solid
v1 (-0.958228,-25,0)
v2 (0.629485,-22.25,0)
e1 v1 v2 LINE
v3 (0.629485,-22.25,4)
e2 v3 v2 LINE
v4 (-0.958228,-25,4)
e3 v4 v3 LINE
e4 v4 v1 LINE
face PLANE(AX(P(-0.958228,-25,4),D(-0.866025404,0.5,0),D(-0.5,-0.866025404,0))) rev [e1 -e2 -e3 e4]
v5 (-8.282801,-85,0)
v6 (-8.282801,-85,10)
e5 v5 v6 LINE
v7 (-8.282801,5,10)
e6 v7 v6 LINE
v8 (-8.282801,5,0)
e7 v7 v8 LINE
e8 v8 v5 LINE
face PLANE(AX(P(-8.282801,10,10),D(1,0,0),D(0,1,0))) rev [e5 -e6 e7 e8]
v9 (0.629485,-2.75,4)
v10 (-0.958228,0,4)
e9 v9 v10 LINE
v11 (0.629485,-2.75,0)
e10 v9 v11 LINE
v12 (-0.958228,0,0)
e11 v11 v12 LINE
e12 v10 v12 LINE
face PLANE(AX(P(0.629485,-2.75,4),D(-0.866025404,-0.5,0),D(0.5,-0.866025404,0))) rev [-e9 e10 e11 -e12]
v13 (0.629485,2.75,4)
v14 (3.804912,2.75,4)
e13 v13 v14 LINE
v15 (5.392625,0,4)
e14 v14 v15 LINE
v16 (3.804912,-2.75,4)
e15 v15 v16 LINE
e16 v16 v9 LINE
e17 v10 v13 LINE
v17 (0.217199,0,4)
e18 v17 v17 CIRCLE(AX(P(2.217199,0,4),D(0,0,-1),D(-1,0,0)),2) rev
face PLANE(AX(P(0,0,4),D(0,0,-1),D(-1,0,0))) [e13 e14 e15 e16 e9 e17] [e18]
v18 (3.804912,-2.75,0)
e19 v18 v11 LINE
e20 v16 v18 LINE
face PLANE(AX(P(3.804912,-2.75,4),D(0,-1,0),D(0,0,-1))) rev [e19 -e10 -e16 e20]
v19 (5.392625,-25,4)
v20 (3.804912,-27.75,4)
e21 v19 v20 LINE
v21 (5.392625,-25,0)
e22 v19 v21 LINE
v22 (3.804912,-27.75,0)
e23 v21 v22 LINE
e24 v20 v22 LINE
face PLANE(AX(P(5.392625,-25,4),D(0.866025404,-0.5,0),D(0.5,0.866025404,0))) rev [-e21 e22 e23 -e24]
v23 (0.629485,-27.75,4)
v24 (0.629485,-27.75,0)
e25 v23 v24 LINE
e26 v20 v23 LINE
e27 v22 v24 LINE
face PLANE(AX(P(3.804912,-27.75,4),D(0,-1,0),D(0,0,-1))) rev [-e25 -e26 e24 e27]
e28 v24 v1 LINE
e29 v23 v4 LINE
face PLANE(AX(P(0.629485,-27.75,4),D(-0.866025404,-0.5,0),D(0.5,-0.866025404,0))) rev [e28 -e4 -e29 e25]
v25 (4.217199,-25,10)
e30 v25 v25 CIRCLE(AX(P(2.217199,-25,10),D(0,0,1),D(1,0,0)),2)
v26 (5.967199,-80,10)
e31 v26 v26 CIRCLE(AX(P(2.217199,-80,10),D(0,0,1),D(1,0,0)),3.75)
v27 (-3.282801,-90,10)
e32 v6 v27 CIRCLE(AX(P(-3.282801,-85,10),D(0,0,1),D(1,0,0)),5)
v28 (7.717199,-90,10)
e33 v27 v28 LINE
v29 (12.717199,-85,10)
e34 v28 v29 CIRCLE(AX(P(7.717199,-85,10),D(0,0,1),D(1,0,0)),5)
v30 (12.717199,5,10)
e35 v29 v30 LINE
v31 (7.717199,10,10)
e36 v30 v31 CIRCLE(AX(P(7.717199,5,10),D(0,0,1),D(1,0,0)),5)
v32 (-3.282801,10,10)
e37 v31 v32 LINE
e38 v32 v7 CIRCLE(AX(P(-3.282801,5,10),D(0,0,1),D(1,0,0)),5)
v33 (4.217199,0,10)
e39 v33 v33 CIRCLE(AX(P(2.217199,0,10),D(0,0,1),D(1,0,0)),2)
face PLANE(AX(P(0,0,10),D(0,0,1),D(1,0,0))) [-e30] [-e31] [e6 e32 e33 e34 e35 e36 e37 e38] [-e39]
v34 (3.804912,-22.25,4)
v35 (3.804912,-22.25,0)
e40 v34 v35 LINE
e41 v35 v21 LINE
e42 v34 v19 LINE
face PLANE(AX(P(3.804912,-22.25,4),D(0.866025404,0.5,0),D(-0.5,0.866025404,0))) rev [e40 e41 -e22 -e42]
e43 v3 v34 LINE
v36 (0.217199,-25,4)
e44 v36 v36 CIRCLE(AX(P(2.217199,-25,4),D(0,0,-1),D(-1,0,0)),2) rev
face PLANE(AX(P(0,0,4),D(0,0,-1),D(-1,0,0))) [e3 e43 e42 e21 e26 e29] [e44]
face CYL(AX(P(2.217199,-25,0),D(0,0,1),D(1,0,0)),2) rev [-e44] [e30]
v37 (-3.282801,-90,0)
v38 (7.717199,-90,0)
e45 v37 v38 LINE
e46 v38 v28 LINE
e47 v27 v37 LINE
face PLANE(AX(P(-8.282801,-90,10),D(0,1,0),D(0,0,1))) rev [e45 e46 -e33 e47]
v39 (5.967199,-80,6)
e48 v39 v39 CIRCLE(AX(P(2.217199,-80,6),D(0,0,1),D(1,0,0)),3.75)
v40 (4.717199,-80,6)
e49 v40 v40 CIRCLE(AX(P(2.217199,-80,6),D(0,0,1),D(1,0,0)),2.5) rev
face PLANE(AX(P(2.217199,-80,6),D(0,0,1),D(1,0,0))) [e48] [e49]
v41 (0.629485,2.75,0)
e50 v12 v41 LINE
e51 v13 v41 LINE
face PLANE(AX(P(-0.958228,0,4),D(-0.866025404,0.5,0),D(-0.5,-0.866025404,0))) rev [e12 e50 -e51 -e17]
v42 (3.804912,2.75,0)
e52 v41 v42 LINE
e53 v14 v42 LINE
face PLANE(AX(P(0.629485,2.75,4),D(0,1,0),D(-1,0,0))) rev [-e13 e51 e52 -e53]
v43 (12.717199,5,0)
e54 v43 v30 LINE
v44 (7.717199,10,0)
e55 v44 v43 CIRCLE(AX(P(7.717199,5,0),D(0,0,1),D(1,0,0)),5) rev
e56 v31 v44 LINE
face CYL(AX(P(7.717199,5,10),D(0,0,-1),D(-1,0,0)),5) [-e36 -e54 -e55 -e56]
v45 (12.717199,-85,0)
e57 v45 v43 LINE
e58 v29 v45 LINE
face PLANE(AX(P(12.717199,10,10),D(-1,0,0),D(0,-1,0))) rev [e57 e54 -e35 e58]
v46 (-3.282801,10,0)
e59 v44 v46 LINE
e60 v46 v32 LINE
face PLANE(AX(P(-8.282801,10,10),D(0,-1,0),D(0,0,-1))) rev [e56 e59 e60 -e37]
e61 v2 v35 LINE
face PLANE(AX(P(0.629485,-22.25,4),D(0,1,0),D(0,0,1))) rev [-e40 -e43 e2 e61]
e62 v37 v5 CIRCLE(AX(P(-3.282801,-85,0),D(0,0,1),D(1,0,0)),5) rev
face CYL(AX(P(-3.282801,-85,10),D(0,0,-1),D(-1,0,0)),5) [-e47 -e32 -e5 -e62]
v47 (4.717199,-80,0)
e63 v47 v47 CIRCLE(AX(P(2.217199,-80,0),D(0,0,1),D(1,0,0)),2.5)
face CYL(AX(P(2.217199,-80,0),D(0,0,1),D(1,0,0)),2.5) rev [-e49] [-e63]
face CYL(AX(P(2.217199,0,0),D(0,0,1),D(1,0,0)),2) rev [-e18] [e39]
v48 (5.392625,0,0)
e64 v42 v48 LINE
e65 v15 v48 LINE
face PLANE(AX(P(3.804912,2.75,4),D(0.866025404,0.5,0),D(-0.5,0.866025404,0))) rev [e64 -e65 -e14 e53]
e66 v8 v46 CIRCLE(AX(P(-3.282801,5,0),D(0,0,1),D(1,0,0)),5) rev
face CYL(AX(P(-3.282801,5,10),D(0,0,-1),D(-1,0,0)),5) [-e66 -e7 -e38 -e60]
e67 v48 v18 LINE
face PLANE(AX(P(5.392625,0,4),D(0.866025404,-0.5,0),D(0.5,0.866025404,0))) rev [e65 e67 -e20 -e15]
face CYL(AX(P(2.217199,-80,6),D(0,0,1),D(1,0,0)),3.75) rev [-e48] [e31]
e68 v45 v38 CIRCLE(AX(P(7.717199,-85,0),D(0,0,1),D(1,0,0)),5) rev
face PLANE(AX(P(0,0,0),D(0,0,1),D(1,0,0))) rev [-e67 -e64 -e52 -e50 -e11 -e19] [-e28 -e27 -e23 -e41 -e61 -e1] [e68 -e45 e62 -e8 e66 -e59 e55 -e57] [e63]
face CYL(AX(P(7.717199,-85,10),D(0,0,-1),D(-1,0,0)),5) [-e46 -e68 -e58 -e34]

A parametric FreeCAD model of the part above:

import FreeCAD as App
import Part
import Sketcher

V = App.Vector
Q = App.Units.Quantity


def edges_at(feature, points):
    """Names of the edges that pass closest to the given points."""
    edges = feature.Shape.Edges
    near = lambda p: min(range(len(edges)), key=lambda i: edges[i].distToShape(Part.Vertex(*p))[0])
    return sorted({f"Edge{near(p) + 1}" for p in points})

doc = App.newDocument("Part")
body = doc.addObject("PartDesign::Body", "Body")

sketch1 = doc.addObject("Sketcher::SketchObject", "Sketch")
body.addObject(sketch1)
sketch1.AttachmentSupport = (doc.XY_Plane, [""])
sketch1.MapMode = "FlatFace"
sketch1.addGeometry([
    Part.LineSegment(V(-8, 10, 0), V(-8, -90, 0)),
    Part.LineSegment(V(-8, -90, 0), V(13, -90, 0)),
    Part.LineSegment(V(13, -90, 0), V(13, 10, 0)),
    Part.LineSegment(V(13, 10, 0), V(-8, 10, 0)),
], False)
sketch1.addConstraint([
    Sketcher.Constraint("Coincident", 0, 2, 1, 1),
    Sketcher.Constraint("Coincident", 1, 2, 2, 1),
    Sketcher.Constraint("Coincident", 2, 2, 3, 1),
    Sketcher.Constraint("Coincident", 3, 2, 0, 1),
    Sketcher.Constraint("Vertical", 0),
    Sketcher.Constraint("Horizontal", 1),
    Sketcher.Constraint("Vertical", 2),
    Sketcher.Constraint("Horizontal", 3),
    Sketcher.Constraint("DistanceX", 1, 1, 1, 2, 21.0),
    Sketcher.Constraint("DistanceY", 0, 2, 0, 1, 100.0),
    Sketcher.Constraint("DistanceY", 0, 2, -1, 1, 90.0),
    Sketcher.Constraint("DistanceX", 0, 2, -1, 1, 8.282801),
])
pad1 = doc.addObject("PartDesign::Pad", "Pad")
body.addObject(pad1)
pad1.Profile = sketch1
pad1.Length = 10

sketch2 = doc.addObject("Sketcher::SketchObject", "Sketch001")
body.addObject(sketch2)
sketch2.AttachmentSupport = (doc.XY_Plane, [""])
sketch2.MapMode = "FlatFace"
sketch2.AttachmentOffset = App.Placement(V(0, 0, 10), App.Rotation())
sketch2.addGeometry([
    Part.Circle(V(2.2, 0, 0), V(0, 0, 1), 2),
    Part.Circle(V(2.2, -25, 0), V(0, 0, 1), 2),
    Part.Circle(V(2.2, -80, 0), V(0, 0, 1), 2.5),
], False)
sketch2.addConstraint([
    Sketcher.Constraint("Equal", 0, 1),
    Sketcher.Constraint("PointOnObject", 0, 3, -1),
    Sketcher.Constraint("Vertical", 0, 3, 1, 3),
    Sketcher.Constraint("Vertical", 1, 3, 2, 3),
    Sketcher.Constraint("Diameter", 0, 4.0),
    Sketcher.Constraint("Diameter", 2, 5.0),
    Sketcher.Constraint("DistanceY", 1, 3, -1, 1, 25.0),
    Sketcher.Constraint("DistanceY", 2, 3, -1, 1, 80.0),
    Sketcher.Constraint("DistanceX", -1, 1, 0, 3, 2.217199),
])
pocket1 = doc.addObject("PartDesign::Pocket", "Pocket")
body.addObject(pocket1)
pocket1.Profile = sketch2
pocket1.Length = 10
doc.recompute()

fillet = doc.addObject("PartDesign::Fillet", "Fillet")
body.addObject(fillet)
fillet.Base = (pocket1, edges_at(pocket1, [
    (-8.283, 10, 5),
    (12.717, 10, 5),
    (12.717, -90, 5),
    (-8.283, -90, 5),
]))
fillet.Radius = 5

sketch3 = doc.addObject("Sketcher::SketchObject", "Sketch002")
body.addObject(sketch3)
sketch3.AttachmentSupport = (doc.XY_Plane, [""])
sketch3.MapMode = "FlatFace"
sketch3.addGeometry([
    Part.LineSegment(V(3.8, 2.8, 0), V(5.4, 0, 0)),
    Part.LineSegment(V(5.4, 0, 0), V(3.8, -2.8, 0)),
    Part.LineSegment(V(3.8, -2.8, 0), V(0.6, -2.8, 0)),
    Part.LineSegment(V(0.6, -2.8, 0), V(-1, 0, 0)),
    Part.LineSegment(V(-1, 0, 0), V(0.6, 2.8, 0)),
    Part.LineSegment(V(0.6, 2.8, 0), V(3.8, 2.8, 0)),
    Part.LineSegment(V(3.8, -22.2, 0), V(5.4, -25, 0)),
    Part.LineSegment(V(5.4, -25, 0), V(3.8, -27.8, 0)),
    Part.LineSegment(V(3.8, -27.8, 0), V(0.6, -27.8, 0)),
    Part.LineSegment(V(0.6, -27.8, 0), V(-1, -25, 0)),
    Part.LineSegment(V(-1, -25, 0), V(0.6, -22.2, 0)),
    Part.LineSegment(V(0.6, -22.2, 0), V(3.8, -22.2, 0)),
], False)
sketch3.addConstraint([
    Sketcher.Constraint("Coincident", 0, 2, 1, 1),
    Sketcher.Constraint("Coincident", 1, 2, 2, 1),
    Sketcher.Constraint("Coincident", 2, 2, 3, 1),
    Sketcher.Constraint("Coincident", 3, 2, 4, 1),
    Sketcher.Constraint("Coincident", 4, 2, 5, 1),
    Sketcher.Constraint("Coincident", 5, 2, 0, 1),
    Sketcher.Constraint("Coincident", 6, 2, 7, 1),
    Sketcher.Constraint("Coincident", 7, 2, 8, 1),
    Sketcher.Constraint("Coincident", 8, 2, 9, 1),
    Sketcher.Constraint("Coincident", 9, 2, 10, 1),
    Sketcher.Constraint("Coincident", 10, 2, 11, 1),
    Sketcher.Constraint("Coincident", 11, 2, 6, 1),
    Sketcher.Constraint("Horizontal", 2),
    Sketcher.Constraint("Horizontal", 5),
    Sketcher.Constraint("Horizontal", 8),
    Sketcher.Constraint("Horizontal", 11),
    Sketcher.Constraint("Symmetric", 2, 2, 4, 2, -1),
    Sketcher.Constraint("PointOnObject", 0, 2, -1),
    Sketcher.Constraint("PointOnObject", 3, 2, -1),
    Sketcher.Constraint("Parallel", 0, 3),
    Sketcher.Constraint("Parallel", 1, 4),
    Sketcher.Constraint("Parallel", 3, 6),
    Sketcher.Constraint("Parallel", 4, 7),
    Sketcher.Constraint("Parallel", 6, 9),
    Sketcher.Constraint("Parallel", 7, 10),
    Sketcher.Constraint("Horizontal", 6, 2, 9, 2),
    Sketcher.Constraint("Vertical", 0, 2, 6, 2),
    Sketcher.Constraint("Vertical", 5, 2, 7, 2),
    Sketcher.Constraint("Vertical", 4, 2, 8, 2),
    Sketcher.Constraint("Vertical", 8, 2, 10, 2),
    Sketcher.Constraint("Angle", 0, Q("-60 deg")),
    Sketcher.Constraint("DistanceY", 6, 2, -1, 1, 25.0),
    Sketcher.Constraint("DistanceY", 2, 2, 4, 2, 5.5),
    Sketcher.Constraint("DistanceX", 2, 2, 2, 1, 3.175426),
    Sketcher.Constraint("DistanceX", -1, 1, 1, 2, 3.804912),
])
pocket2 = doc.addObject("PartDesign::Pocket", "Pocket001")
body.addObject(pocket2)
pocket2.Profile = sketch3
pocket2.Length = 4
pocket2.Reversed = True

sketch4 = doc.addObject("Sketcher::SketchObject", "Sketch003")
body.addObject(sketch4)
sketch4.AttachmentSupport = (doc.XY_Plane, [""])
sketch4.MapMode = "FlatFace"
sketch4.AttachmentOffset = App.Placement(V(0, 0, 10), App.Rotation())
sketch4.addGeometry(Part.Circle(V(2.2, -80, 0), V(0, 0, 1), 3.8), False)
sketch4.addConstraint([
    Sketcher.Constraint("Diameter", 0, 7.5),
    Sketcher.Constraint("DistanceY", 0, 3, -1, 1, 80.0),
    Sketcher.Constraint("DistanceX", -1, 1, 0, 3, 2.217199),
])
pocket3 = doc.addObject("PartDesign::Pocket", "Pocket002")
body.addObject(pocket3)
pocket3.Profile = sketch4
pocket3.Length = 4

doc.recompute()
